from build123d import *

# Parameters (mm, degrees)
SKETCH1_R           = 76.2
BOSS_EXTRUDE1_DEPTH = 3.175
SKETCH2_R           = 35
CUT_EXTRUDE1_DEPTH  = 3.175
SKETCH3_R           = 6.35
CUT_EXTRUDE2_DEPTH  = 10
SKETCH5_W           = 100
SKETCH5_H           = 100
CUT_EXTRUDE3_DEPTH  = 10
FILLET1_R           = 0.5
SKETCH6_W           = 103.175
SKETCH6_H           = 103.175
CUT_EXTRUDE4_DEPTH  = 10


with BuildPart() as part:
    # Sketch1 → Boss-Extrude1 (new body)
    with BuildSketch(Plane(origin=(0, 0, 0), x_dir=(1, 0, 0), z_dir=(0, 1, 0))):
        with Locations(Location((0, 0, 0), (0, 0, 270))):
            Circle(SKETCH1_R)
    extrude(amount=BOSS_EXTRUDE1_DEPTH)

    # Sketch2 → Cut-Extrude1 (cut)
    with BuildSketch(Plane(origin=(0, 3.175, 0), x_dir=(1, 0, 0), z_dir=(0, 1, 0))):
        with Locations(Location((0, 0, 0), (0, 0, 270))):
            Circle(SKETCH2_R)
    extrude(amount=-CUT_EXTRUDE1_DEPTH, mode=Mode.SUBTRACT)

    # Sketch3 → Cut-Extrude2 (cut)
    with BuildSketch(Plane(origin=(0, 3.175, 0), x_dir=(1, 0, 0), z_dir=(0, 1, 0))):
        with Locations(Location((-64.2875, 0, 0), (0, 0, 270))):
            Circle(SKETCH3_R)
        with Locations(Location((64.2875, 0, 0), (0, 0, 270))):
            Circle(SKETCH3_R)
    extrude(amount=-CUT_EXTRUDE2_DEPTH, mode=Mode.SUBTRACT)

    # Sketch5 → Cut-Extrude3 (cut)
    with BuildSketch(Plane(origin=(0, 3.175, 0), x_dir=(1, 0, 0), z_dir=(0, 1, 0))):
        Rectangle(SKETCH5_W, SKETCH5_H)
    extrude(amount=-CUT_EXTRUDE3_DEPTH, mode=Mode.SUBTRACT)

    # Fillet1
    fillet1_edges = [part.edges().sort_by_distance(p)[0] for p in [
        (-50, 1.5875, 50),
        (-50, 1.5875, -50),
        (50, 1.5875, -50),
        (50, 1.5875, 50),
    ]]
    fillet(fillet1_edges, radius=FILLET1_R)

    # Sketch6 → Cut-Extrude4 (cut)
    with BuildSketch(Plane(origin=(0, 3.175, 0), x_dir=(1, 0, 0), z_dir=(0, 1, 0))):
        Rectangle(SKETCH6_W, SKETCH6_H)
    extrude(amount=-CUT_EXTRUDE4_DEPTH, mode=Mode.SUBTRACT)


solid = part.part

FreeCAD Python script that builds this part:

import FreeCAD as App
import Part
import Sketcher


def edges_at(feature, points):
    """Names of the edges that pass closest to the given points."""
    edges = feature.Shape.Edges
    near = lambda p: min(range(len(edges)), key=lambda i: edges[i].distToShape(Part.Vertex(*p))[0])
    return sorted({f"Edge{near(p) + 1}" for p in points})


def add_polygon(sketch, points):
    """Adds a closed chain of lines whose ends are joined by coincident constraints."""
    first, n = sketch.GeometryCount, len(points)
    for a, b in zip(points, points[1:] + points[:1]):
        sketch.addGeometry(Part.LineSegment(App.Vector(*a, 0), App.Vector(*b, 0)), False)
    for i in range(n):
        sketch.addConstraint(Sketcher.Constraint("Coincident", first + i, 2, first + (i + 1) % n, 1))

doc = App.newDocument("Part")
body = doc.addObject("PartDesign::Body", "Body")

sketch1 = body.newObject("Sketcher::SketchObject", "Sketch")
sketch1.AttachmentSupport = (doc.getObject("XZ_Plane"), [""])
sketch1.MapMode = "FlatFace"
sketch1.addGeometry(Part.Circle(App.Vector(0, 0, 0), App.Vector(0, 0, 1), 76), False)
sketch1.addConstraint([
    Sketcher.Constraint("Coincident", 0, 3, -1, 1),
    Sketcher.Constraint("Diameter", 0, 152.4),
])
pad1 = body.newObject("PartDesign::Pad", "Pad")
pad1.Profile = sketch1
pad1.Length = 3.175
pad1.Reversed = True

sketch2 = body.newObject("Sketcher::SketchObject", "Sketch001")
sketch2.AttachmentSupport = (doc.getObject("XZ_Plane"), [""])
sketch2.MapMode = "FlatFace"
sketch2.AttachmentOffset = App.Placement(App.Vector(0, 0, -3.175), App.Rotation())
sketch2.addGeometry(Part.Circle(App.Vector(0, 0, 0), App.Vector(0, 0, 1), 35), False)
sketch2.addConstraint([
    Sketcher.Constraint("Coincident", 0, 3, -1, 1),
    Sketcher.Constraint("Diameter", 0, 70.0),
])
pocket1 = body.newObject("PartDesign::Pocket", "Pocket")
pocket1.Profile = sketch2
pocket1.Length = 3.175
pocket1.Reversed = True

sketch3 = body.newObject("Sketcher::SketchObject", "Sketch002")
sketch3.AttachmentSupport = (doc.getObject("XZ_Plane"), [""])
sketch3.MapMode = "FlatFace"
sketch3.AttachmentOffset = App.Placement(App.Vector(0, 0, -3.175), App.Rotation())
sketch3.addGeometry([
    Part.Circle(App.Vector(-64, 0, 0), App.Vector(0, 0, 1), 6),
    Part.Circle(App.Vector(64, 0, 0), App.Vector(0, 0, 1), 6),
], False)
sketch3.addConstraint([
    Sketcher.Constraint("Equal", 0, 1),
    Sketcher.Constraint("Symmetric", 0, 3, 1, 3, -1, 1),
    Sketcher.Constraint("PointOnObject", 0, 3, -1),
    Sketcher.Constraint("Diameter", 0, 12.7),
    Sketcher.Constraint("DistanceX", 0, 3, 1, 3, 128.575),
])
pocket2 = body.newObject("PartDesign::Pocket", "Pocket001")
pocket2.Profile = sketch3
pocket2.Length = 10
pocket2.Reversed = True

sketch4 = body.newObject("Sketcher::SketchObject", "Sketch003")
sketch4.AttachmentSupport = (doc.getObject("XZ_Plane"), [""])
sketch4.MapMode = "FlatFace"
sketch4.AttachmentOffset = App.Placement(App.Vector(0, 0, -3.175), App.Rotation())
add_polygon(sketch4, [(-50, -50), (-50, 50), (50, 50), (50, -50)])
sketch4.addConstraint([
    Sketcher.Constraint("Vertical", 0),
    Sketcher.Constraint("Horizontal", 1),
    Sketcher.Constraint("Vertical", 2),
    Sketcher.Constraint("Horizontal", 3),
    Sketcher.Constraint("Symmetric", 0, 2, 2, 2, -1, 1),
    Sketcher.Constraint("Equal", 3, 0),
    Sketcher.Constraint("DistanceX", 1, 1, 1, 2, 100.0),
])
pocket3 = body.newObject("PartDesign::Pocket", "Pocket002")
pocket3.Profile = sketch4
pocket3.Length = 10
pocket3.Reversed = True
doc.recompute()

fillet = body.newObject("PartDesign::Fillet", "Fillet")
fillet.Base = (pocket3, edges_at(pocket3, [
    (-50, 1.587, 50),
    (-50, 1.587, -50),
    (50, 1.587, -50),
    (50, 1.587, 50),
]))
fillet.Radius = 0.5

sketch5 = body.newObject("Sketcher::SketchObject", "Sketch004")
sketch5.AttachmentSupport = (doc.getObject("XZ_Plane"), [""])
sketch5.MapMode = "FlatFace"
sketch5.AttachmentOffset = App.Placement(App.Vector(0, 0, -3.175), App.Rotation())
add_polygon(sketch5, [(-52, -52), (-52, 52), (52, 52), (52, -52)])
sketch5.addConstraint([
    Sketcher.Constraint("Vertical", 0),
    Sketcher.Constraint("Horizontal", 1),
    Sketcher.Constraint("Vertical", 2),
    Sketcher.Constraint("Horizontal", 3),
    Sketcher.Constraint("Symmetric", 0, 2, 2, 2, -1, 1),
    Sketcher.Constraint("Equal", 3, 0),
    Sketcher.Constraint("DistanceX", 1, 1, 1, 2, 103.175),
])
pocket4 = body.newObject("PartDesign::Pocket", "Pocket003")
pocket4.Profile = sketch5
pocket4.Length = 10
pocket4.Reversed = True

doc.recompute()
